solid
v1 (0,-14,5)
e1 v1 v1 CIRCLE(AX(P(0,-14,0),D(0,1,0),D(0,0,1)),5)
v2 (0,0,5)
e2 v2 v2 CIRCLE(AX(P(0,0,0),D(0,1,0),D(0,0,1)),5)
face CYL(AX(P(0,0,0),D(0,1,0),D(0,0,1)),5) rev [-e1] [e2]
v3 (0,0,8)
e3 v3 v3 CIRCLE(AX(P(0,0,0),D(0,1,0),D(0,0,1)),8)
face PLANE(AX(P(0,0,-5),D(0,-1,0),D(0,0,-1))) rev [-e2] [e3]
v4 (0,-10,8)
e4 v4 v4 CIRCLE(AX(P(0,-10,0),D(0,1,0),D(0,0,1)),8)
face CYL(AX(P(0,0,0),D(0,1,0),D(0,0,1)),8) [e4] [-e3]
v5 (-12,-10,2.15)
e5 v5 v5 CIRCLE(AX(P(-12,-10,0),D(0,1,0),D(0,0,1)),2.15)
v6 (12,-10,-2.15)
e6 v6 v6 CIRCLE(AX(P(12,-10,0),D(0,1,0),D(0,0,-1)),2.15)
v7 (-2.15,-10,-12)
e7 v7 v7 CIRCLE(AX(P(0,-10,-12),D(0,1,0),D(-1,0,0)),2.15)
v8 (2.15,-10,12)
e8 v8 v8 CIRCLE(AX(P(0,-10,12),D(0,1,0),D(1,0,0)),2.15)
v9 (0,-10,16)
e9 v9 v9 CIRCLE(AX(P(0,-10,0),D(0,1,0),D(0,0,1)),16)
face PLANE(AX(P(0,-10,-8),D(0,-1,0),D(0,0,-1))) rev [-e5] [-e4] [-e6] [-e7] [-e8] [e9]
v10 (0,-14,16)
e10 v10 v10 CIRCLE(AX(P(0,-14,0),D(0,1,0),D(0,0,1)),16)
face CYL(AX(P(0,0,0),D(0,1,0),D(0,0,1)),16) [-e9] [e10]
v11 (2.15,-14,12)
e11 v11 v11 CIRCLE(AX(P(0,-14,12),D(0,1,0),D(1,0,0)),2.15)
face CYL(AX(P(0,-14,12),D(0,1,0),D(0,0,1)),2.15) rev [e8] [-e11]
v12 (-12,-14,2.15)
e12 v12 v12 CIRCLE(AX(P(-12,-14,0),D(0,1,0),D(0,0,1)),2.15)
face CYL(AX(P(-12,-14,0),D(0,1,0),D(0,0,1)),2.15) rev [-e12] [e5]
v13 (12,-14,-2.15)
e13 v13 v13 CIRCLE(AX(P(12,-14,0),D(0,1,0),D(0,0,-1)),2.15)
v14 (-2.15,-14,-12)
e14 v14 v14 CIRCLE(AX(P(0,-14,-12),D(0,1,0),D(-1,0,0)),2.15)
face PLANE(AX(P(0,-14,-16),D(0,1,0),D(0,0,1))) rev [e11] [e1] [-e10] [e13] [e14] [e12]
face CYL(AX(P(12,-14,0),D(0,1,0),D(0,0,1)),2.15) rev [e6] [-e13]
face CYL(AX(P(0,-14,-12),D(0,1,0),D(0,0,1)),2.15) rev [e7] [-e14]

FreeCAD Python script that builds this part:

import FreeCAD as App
import Part
import Sketcher
from FreeCAD import Vector


def add_polygon(sketch, points):
    """Adds a closed chain of lines whose ends are joined by coincident constraints."""
    first, n = sketch.GeometryCount, len(points)
    for a, b in zip(points, points[1:] + points[:1]):
        sketch.addGeometry(Part.LineSegment(App.Vector(*a, 0), App.Vector(*b, 0)), False)
    for i in range(n):
        sketch.addConstraint(Sketcher.Constraint("Coincident", first + i, 2, first + (i + 1) % n, 1))

doc = App.newDocument("Part")
body = doc.addObject("PartDesign::Body", "Body")

# Sketch on YZ plane
sketch1 = doc.addObject("Sketcher::SketchObject", "Sketch")
body.addObject(sketch1)
sketch1.AttachmentSupport = (doc.YZ_Plane, [""])
sketch1.MapMode = "FlatFace"
add_polygon(sketch1, [(-10, -8), (0, -8), (0, -5), (-14, -5), (-14, -16), (-10, -16)])  # lines 0-5
sketch1.addConstraint([
    Sketcher.Constraint("Horizontal", 0),
    Sketcher.Constraint("Vertical", 1),
    Sketcher.Constraint("Horizontal", 2),
    Sketcher.Constraint("Vertical", 3),
    Sketcher.Constraint("Horizontal", 4),
    Sketcher.Constraint("Vertical", 5),
    Sketcher.Constraint("PointOnObject", 0, 2, -2),
    Sketcher.Constraint("DistanceX", 0, 1, 0, 2, 10.0),
    Sketcher.Constraint("DistanceX", 2, 2, 2, 1, 14.0),
    Sketcher.Constraint("DistanceY", 1, 1, 1, 2, 3.0),
    Sketcher.Constraint("DistanceY", 3, 2, 3, 1, 11.0),
    Sketcher.Constraint("DistanceY", 0, 2, -1, 1, 8.0),
])
revolution = doc.addObject("PartDesign::Revolution", "Revolution")
body.addObject(revolution)
revolution.Profile = sketch1
revolution.ReferenceAxis = (sketch1, ["H_Axis"])
revolution.Angle = 360

# Sketch on XZ plane
sketch2 = doc.addObject("Sketcher::SketchObject", "Sketch001")
body.addObject(sketch2)
sketch2.AttachmentSupport = (doc.XZ_Plane, [""])
sketch2.MapMode = "FlatFace"
sketch2.AttachmentOffset = App.Placement(Vector(0, 0, 10), App.Rotation())
sketch2.addGeometry(Part.Circle(Vector(-12, 0, 0), Vector(0, 0, 1), 2.1), False)
sketch2.addConstraint([
    Sketcher.Constraint("PointOnObject", 0, 3, -1),
    Sketcher.Constraint("Diameter", 0, 4.3),
    Sketcher.Constraint("DistanceX", 0, 3, -1, 1, 12.0),
])
pocket1 = doc.addObject("PartDesign::Pocket", "Pocket")
body.addObject(pocket1)
pocket1.Profile = sketch2
pocket1.Type = "ThroughAll"
pocket1.Reversed = True
doc.recompute()

polarpattern = doc.addObject("PartDesign::PolarPattern", "PolarPattern")
body.addObject(polarpattern)
polarpattern.Originals = [pocket1]
polarpattern.Axis = (doc.Y_Axis, [""])
polarpattern.Angle = 360
polarpattern.Occurrences = 4
body.Tip = polarpattern

doc.recompute()
